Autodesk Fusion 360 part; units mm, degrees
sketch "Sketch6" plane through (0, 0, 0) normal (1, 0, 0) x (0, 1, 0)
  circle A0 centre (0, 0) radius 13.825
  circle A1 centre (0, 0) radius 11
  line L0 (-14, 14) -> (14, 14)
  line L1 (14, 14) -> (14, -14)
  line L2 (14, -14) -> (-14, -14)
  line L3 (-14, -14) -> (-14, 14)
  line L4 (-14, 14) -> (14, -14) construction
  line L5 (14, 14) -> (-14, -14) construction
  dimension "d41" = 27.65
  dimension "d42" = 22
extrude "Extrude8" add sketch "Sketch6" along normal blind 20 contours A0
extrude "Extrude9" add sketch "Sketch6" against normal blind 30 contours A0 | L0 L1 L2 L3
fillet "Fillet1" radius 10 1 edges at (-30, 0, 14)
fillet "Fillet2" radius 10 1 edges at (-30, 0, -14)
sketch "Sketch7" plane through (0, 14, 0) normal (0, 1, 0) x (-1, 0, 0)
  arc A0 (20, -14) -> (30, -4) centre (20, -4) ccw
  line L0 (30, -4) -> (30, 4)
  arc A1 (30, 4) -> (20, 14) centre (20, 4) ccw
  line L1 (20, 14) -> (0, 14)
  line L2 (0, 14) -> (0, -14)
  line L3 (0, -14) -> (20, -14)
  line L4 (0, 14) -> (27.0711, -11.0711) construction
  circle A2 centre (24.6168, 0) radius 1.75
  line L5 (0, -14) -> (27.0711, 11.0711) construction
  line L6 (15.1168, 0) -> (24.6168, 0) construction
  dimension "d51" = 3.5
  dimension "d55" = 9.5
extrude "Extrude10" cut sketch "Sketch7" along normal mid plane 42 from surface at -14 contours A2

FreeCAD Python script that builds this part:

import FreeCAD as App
import Part
import Sketcher
Q = App.Units.Quantity


def edges_at(feature, points):
    """Names of the edges that pass closest to the given points."""
    edges = feature.Shape.Edges
    near = lambda p: min(range(len(edges)), key=lambda i: edges[i].distToShape(Part.Vertex(*p))[0])
    return sorted({f"Edge{near(p) + 1}" for p in points})


def add_polygon(sketch, points):
    """Adds a closed chain of lines whose ends are joined by coincident constraints."""
    first, n = sketch.GeometryCount, len(points)
    for a, b in zip(points, points[1:] + points[:1]):
        sketch.addGeometry(Part.LineSegment(App.Vector(*a, 0), App.Vector(*b, 0)), False)
    for i in range(n):
        sketch.addConstraint(Sketcher.Constraint("Coincident", first + i, 2, first + (i + 1) % n, 1))

doc = App.newDocument("Part")
body = doc.addObject("PartDesign::Body", "Body")

sketch1 = body.newObject("Sketcher::SketchObject", "Sketch")
sketch1.AttachmentSupport = (doc.getObject("YZ_Plane"), [""])
sketch1.MapMode = "FlatFace"
sketch1.addGeometry([
    Part.Circle(App.Vector(0, 0, 0), App.Vector(0, 0, 1), 14),
    Part.Circle(App.Vector(0, 0, 0), App.Vector(0, 0, 1), 11),
], False)
sketch1.addConstraint([
    Sketcher.Constraint("Coincident", 0, 3, -1, 1),
    Sketcher.Constraint("Coincident", 1, 3, -1, 1),
    Sketcher.Constraint("Diameter", 1, Q("22 mm")),
    Sketcher.Constraint("Diameter", 0, Q("27.65 mm")),
])
pad1 = body.newObject("PartDesign::Pad", "Pad")
pad1.Profile = sketch1
pad1.Length = 20

sketch2 = body.newObject("Sketcher::SketchObject", "Sketch001")
sketch2.AttachmentSupport = (doc.getObject("YZ_Plane"), [""])
sketch2.MapMode = "FlatFace"
add_polygon(sketch2, [(14, 14), (-14, 14), (-14, -14), (14, -14)])
sketch2.addGeometry(Part.Circle(App.Vector(0, 0, 0), App.Vector(0, 0, 1), 11), False)
sketch2.addConstraint([
    Sketcher.Constraint("Horizontal", 0),
    Sketcher.Constraint("Vertical", 1),
    Sketcher.Constraint("Horizontal", 2),
    Sketcher.Constraint("Vertical", 3),
    Sketcher.Constraint("Coincident", 4, 3, -1, 1),
    Sketcher.Constraint("Symmetric", 0, 2, 2, 2, -1, 1),
    Sketcher.Constraint("Equal", 2, 1),
    Sketcher.Constraint("Diameter", 4, Q("22 mm")),
    Sketcher.Constraint("DistanceX", 0, 2, 0, 1, Q("28 mm")),
])
pad2 = body.newObject("PartDesign::Pad", "Pad001")
pad2.Profile = sketch2
pad2.Length = 30
pad2.Reversed = True
doc.recompute()

fillet = body.newObject("PartDesign::Fillet", "Fillet")
fillet.Base = (pad2, edges_at(pad2, [(-30, 0, 14)]))
fillet.Radius = 10
doc.recompute()

fillet2 = body.newObject("PartDesign::Fillet", "Fillet001")
fillet2.Base = (fillet, edges_at(fillet, [(-30, 0, -14)]))
fillet2.Radius = 10

sketch3 = body.newObject("Sketcher::SketchObject", "Sketch002")
sketch3.AttachmentSupport = (doc.getObject("XZ_Plane"), [""])
sketch3.MapMode = "FlatFace"
sketch3.addGeometry(Part.Circle(App.Vector(-24.6, 0, 0), App.Vector(0, 0, 1), 1.8), False)
sketch3.addConstraint([
    Sketcher.Constraint("PointOnObject", 0, 3, -1),
    Sketcher.Constraint("Diameter", 0, Q("3.5 mm")),
    Sketcher.Constraint("DistanceX", 0, 3, -1, 1, Q("24.6168 mm")),
])
pocket1 = body.newObject("PartDesign::Pocket", "Pocket")
pocket1.Profile = sketch3
pocket1.Length = 42
pocket1.Midplane = True

doc.recompute()
